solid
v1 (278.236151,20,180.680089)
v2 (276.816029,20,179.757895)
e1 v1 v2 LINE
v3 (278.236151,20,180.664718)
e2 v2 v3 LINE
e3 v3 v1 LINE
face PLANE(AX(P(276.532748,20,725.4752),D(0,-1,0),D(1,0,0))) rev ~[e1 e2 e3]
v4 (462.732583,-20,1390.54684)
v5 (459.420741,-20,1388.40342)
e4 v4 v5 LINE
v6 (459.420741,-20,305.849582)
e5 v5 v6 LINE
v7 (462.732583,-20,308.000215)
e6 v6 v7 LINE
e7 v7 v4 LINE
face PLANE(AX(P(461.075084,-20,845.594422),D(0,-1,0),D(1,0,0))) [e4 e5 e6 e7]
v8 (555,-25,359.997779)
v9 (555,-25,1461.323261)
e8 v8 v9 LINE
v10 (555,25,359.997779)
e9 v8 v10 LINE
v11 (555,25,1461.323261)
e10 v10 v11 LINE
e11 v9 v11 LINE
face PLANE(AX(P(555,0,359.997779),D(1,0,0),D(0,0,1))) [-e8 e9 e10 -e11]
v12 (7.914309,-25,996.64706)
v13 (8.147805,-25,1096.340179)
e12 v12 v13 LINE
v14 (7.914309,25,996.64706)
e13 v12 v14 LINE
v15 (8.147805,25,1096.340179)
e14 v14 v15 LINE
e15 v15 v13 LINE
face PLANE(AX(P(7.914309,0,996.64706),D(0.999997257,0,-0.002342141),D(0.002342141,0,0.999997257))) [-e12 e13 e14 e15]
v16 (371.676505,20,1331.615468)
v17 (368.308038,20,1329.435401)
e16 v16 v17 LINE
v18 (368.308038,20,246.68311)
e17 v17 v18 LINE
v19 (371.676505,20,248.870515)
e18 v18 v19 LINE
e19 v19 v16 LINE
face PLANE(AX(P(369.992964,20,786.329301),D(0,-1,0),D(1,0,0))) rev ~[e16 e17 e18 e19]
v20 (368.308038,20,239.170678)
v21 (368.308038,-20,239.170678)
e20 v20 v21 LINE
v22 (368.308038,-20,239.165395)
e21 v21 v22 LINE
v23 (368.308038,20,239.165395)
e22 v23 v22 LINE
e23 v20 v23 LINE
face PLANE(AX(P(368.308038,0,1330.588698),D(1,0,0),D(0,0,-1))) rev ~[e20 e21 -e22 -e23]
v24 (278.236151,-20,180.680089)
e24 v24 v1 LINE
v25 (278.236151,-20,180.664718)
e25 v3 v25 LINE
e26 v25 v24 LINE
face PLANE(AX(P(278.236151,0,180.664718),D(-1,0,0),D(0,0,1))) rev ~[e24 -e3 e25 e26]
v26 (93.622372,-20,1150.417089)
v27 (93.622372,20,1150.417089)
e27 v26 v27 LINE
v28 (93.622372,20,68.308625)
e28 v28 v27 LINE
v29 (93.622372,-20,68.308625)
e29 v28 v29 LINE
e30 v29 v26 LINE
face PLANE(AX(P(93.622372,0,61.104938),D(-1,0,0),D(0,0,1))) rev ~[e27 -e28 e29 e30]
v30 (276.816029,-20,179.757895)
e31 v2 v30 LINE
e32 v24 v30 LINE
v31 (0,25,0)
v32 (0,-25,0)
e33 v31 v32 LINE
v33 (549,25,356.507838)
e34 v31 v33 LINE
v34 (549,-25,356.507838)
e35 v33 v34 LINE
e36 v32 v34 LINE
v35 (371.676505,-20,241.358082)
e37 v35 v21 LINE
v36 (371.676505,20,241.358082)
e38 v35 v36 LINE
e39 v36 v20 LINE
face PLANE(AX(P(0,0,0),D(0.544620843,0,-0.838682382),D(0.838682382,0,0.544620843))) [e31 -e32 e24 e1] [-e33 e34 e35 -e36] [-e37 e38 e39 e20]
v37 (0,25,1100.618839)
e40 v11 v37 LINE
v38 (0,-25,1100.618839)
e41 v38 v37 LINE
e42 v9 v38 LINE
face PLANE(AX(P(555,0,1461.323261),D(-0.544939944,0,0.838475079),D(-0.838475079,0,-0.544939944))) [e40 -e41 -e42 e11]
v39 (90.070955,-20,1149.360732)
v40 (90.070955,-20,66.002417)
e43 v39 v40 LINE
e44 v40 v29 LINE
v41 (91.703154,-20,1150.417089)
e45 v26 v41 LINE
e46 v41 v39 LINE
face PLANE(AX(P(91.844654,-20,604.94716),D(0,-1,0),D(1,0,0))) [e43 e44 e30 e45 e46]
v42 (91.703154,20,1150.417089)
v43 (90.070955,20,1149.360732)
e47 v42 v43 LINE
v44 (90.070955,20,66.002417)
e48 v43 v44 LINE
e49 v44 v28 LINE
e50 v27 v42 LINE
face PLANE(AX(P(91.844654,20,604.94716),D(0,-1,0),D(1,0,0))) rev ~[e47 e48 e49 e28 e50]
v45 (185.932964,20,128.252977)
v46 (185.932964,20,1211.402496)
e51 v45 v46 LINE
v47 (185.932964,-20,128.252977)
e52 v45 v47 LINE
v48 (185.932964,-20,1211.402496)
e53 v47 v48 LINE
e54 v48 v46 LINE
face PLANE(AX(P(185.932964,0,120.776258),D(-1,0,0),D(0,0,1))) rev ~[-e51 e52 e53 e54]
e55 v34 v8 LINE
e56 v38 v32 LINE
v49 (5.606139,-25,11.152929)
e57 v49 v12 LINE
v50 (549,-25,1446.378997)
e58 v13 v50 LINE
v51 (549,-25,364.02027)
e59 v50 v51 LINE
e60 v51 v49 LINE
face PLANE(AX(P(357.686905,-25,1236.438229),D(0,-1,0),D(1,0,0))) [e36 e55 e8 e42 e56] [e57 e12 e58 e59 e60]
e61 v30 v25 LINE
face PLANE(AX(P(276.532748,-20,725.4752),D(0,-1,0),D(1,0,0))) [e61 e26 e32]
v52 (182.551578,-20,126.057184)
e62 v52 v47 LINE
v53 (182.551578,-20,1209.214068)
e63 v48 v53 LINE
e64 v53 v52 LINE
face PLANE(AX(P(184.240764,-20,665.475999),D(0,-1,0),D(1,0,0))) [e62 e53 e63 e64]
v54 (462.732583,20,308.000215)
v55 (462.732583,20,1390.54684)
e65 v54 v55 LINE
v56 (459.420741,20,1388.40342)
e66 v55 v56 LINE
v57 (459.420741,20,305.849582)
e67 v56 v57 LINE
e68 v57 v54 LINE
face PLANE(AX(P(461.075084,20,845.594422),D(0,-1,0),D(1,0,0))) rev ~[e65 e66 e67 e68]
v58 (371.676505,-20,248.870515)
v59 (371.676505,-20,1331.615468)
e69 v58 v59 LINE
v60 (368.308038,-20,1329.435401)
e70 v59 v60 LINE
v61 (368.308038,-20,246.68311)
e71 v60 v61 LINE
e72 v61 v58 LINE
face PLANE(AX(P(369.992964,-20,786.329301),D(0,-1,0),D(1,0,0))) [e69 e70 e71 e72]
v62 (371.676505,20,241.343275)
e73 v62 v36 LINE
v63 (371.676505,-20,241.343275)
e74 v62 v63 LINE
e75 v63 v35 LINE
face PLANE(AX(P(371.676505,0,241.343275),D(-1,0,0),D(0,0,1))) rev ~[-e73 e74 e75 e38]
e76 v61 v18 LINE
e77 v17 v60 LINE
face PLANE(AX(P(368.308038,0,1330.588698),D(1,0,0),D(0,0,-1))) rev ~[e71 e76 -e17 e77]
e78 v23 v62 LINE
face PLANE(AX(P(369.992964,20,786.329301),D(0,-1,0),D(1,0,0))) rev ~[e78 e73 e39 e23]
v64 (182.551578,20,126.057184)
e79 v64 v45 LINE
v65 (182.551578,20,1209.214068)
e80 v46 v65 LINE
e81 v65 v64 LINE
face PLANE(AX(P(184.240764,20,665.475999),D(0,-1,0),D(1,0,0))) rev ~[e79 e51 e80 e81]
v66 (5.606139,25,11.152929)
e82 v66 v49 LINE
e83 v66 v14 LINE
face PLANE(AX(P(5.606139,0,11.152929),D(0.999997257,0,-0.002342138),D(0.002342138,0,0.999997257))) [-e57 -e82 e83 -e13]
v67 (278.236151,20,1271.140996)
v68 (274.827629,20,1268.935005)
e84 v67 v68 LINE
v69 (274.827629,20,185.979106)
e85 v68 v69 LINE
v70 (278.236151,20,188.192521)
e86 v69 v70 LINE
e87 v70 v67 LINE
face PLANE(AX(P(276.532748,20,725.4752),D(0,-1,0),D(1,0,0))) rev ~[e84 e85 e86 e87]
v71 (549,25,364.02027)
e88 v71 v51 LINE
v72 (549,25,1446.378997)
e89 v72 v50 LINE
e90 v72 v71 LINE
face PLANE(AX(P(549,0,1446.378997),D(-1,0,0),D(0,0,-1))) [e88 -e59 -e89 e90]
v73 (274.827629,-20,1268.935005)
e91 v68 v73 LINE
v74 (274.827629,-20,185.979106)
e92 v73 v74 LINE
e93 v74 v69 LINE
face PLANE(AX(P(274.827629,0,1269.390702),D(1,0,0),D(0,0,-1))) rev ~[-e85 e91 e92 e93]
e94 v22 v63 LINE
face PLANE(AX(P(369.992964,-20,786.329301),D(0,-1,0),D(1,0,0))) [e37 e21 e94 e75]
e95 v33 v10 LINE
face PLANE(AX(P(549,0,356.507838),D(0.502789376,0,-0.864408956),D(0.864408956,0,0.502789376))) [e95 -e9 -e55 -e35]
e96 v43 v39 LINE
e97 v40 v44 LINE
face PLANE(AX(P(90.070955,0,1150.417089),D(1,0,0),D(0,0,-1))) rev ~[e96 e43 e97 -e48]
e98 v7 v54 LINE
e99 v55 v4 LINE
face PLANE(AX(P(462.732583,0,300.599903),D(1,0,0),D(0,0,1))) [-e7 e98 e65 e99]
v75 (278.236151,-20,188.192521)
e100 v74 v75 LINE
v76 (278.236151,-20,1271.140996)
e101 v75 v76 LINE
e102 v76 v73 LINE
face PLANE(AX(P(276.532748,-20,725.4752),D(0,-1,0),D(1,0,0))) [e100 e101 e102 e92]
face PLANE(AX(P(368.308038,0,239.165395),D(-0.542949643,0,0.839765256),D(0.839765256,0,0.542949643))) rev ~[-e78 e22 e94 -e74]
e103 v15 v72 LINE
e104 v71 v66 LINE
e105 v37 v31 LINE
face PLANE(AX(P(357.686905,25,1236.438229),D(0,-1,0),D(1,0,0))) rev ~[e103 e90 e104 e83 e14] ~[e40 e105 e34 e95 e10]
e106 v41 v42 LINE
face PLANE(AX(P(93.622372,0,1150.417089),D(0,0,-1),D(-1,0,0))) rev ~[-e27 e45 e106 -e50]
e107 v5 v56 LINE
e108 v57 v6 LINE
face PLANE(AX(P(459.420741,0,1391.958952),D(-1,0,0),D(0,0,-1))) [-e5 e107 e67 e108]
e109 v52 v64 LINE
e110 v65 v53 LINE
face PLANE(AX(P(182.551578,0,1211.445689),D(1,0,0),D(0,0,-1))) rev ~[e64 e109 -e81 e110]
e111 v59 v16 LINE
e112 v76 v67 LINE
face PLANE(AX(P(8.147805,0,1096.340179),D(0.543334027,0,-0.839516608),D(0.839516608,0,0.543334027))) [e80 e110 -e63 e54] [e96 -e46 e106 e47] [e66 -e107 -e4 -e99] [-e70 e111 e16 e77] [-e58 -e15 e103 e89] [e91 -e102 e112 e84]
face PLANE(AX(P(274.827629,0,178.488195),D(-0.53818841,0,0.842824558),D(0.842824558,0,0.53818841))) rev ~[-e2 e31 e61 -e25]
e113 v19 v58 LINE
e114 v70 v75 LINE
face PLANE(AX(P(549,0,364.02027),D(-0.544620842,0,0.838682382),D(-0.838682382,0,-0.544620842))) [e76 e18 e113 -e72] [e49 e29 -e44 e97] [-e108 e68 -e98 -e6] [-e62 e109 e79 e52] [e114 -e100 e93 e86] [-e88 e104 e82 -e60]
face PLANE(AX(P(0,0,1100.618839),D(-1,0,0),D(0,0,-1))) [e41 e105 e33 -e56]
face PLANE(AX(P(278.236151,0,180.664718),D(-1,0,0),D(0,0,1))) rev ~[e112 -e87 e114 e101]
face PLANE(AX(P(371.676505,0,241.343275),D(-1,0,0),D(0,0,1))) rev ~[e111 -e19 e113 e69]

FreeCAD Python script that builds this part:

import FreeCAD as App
import Part
import Sketcher

V = App.Vector


def add_polygon(sketch, points):
    """Adds a closed chain of lines whose ends are joined by coincident constraints."""
    first, n = sketch.GeometryCount, len(points)
    for a, b in zip(points, points[1:] + points[:1]):
        sketch.addGeometry(Part.LineSegment(App.Vector(*a, 0), App.Vector(*b, 0)), False)
    for i in range(n):
        sketch.addConstraint(Sketcher.Constraint("Coincident", first + i, 2, first + (i + 1) % n, 1))

doc = App.newDocument("Part")
params = doc.addObject("Spreadsheet::Sheet", "Params")
for row, (alias, value) in enumerate([
    ("pad1_length", "50 mm"),
    ("pad2_length", "40 mm"),
], start=1):
    params.set(f"A{row}", alias)
    params.set(f"B{row}", "=" + value)
    params.setAlias(f"B{row}", alias)

body = doc.addObject("PartDesign::Body", "Body")

# Sketch on XZ plane
sketch1 = body.newObject("Sketcher::SketchObject", "Sketch")
sketch1.AttachmentSupport = (doc.getObject("XZ_Plane"), [""])
sketch1.MapMode = "FlatFace"
add_polygon(sketch1, [(0, 1101), (0, 0), (549, 357), (555, 360), (555, 1461)])  # lines 0-4
add_polygon(sketch1, [(8, 997), (8, 1096), (549, 1446), (549, 364), (6, 11)])  # lines 5-9
sketch1.addConstraint(Sketcher.Constraint("Vertical", 0))
sketch1.addConstraint(Sketcher.Constraint("Vertical", 3))
sketch1.addConstraint(Sketcher.Constraint("Vertical", 7))
sketch1.addConstraint(Sketcher.Constraint("Coincident", 0, 2, -1, 1))
sketch1.addConstraint(Sketcher.Constraint("Parallel", 1, 8))
sketch1.addConstraint(Sketcher.Constraint("Parallel", 5, 9))
sketch1.addConstraint(Sketcher.Constraint("Vertical", 1, 2, 6, 2))
sketch1.addConstraint(Sketcher.Constraint("DistanceX", -1, 1, 1, 2, 549.0))
sketch1.addConstraint(Sketcher.Constraint("DistanceX", -1, 1, 2, 2, 555.0))
sketch1.addConstraint(Sketcher.Constraint("DistanceY", 1, 2, 4, 2, 744.111001))
sketch1.addConstraint(Sketcher.Constraint("Distance", 6, 644.242401))
sketch1.addConstraint(Sketcher.Constraint("DistanceY", 0, 2, 0, 1, 1100.618839))
sketch1.addConstraint(Sketcher.Constraint("DistanceY", 3, 1, 3, 2, 1101.325482))
sketch1.addConstraint(Sketcher.Constraint("DistanceY", 2, 2, 5, 2, 736.3424))
sketch1.addConstraint(Sketcher.Constraint("DistanceY", 9, 2, 3, 2, 464.676201))
sketch1.addConstraint(Sketcher.Constraint("Distance", 2, 6.941159))
sketch1.addConstraint(Sketcher.Constraint("DistanceY", 7, 2, 7, 1, 1082.358727))
sketch1.addConstraint(Sketcher.Constraint("DistanceY", -1, 1, 7, 2, 364.02027))
sketch1.addConstraint(Sketcher.Constraint("DistanceX", -1, 1, 8, 2, 5.606139))
pad1 = body.newObject("PartDesign::Pad", "Pad")
pad1.Profile = sketch1
pad1.setExpression("Length", "Params.pad1_length")
pad1.Midplane = True

# Sketch on XZ plane
sketch2 = body.newObject("Sketcher::SketchObject", "Sketch001")
sketch2.AttachmentSupport = (doc.getObject("XZ_Plane"), [""])
sketch2.MapMode = "FlatFace"
add_polygon(sketch2, [(90.1, 1150.4), (90.1, 58.6), (93.6, 61.1), (93.6, 1150.4)])  # lines 0-3
add_polygon(sketch2, [(182.6, 1211.4), (182.6, 118.7), (185.9, 120.8), (185.9, 1211.6)])  # lines 4-7
add_polygon(sketch2, [(274.8, 1269.4), (274.8, 178.5), (278.2, 180.7), (278.2, 1272.7)])  # lines 8-11
add_polygon(sketch2, [(368.3, 1330.6), (368.3, 239.2), (371.7, 241.3), (371.7, 1333.7)])  # lines 12-15
add_polygon(sketch2, [(459.4, 1392), (459.4, 298.4), (462.7, 300.6), (462.7, 1392)])  # lines 16-19
sketch2.addConstraint(Sketcher.Constraint("Vertical", 0))
sketch2.addConstraint(Sketcher.Constraint("Vertical", 2))
sketch2.addConstraint(Sketcher.Constraint("Horizontal", 3))
sketch2.addConstraint(Sketcher.Constraint("Vertical", 4))
sketch2.addConstraint(Sketcher.Constraint("Vertical", 6))
sketch2.addConstraint(Sketcher.Constraint("Vertical", 8))
sketch2.addConstraint(Sketcher.Constraint("Vertical", 10))
sketch2.addConstraint(Sketcher.Constraint("Vertical", 12))
sketch2.addConstraint(Sketcher.Constraint("Vertical", 14))
sketch2.addConstraint(Sketcher.Constraint("Vertical", 16))
sketch2.addConstraint(Sketcher.Constraint("Vertical", 18))
sketch2.addConstraint(Sketcher.Constraint("Distance", 13, 4.011201))
sketch2.addConstraint(Sketcher.Constraint("DistanceY", 2, 1, 2, 2, 1089.312151))
sketch2.addConstraint(Sketcher.Constraint("DistanceY", 6, 1, 6, 2, 1090.797581))
sketch2.addConstraint(Sketcher.Constraint("DistanceY", -1, 1, 11, 2, 1269.390702))
sketch2.addConstraint(Sketcher.Constraint("DistanceY", -1, 1, 15, 2, 1330.588698))
sketch2.addConstraint(Sketcher.Constraint("DistanceY", 1, 2, 6, 2, 1150.468901))
sketch2.addConstraint(Sketcher.Constraint("DistanceY", 2, 2, 7, 2, 61.0286))
sketch2.addConstraint(Sketcher.Constraint("DistanceY", 8, 2, 12, 2, 60.6772))
sketch2.addConstraint(Sketcher.Constraint("DistanceY", 4, 2, 13, 2, 122.648299))
sketch2.addConstraint(Sketcher.Constraint("DistanceY", 10, 2, 18, 2, 119.376302))
sketch2.addConstraint(Sketcher.Constraint("Distance", 1, 4.32988))
sketch2.addConstraint(Sketcher.Constraint("Distance", 5, 3.97058))
sketch2.addConstraint(Sketcher.Constraint("Distance", 17, 3.963629))
sketch2.addConstraint(Sketcher.Constraint("DistanceX", 3, 2, 3, 1, 3.551417))
sketch2.addConstraint(Sketcher.Constraint("DistanceY", 4, 2, 4, 1, 1092.750713))
sketch2.addConstraint(Sketcher.Constraint("DistanceY", 8, 2, 8, 1, 1090.902507))
sketch2.addConstraint(Sketcher.Constraint("DistanceY", 10, 1, 10, 2, 1092.006147))
sketch2.addConstraint(Sketcher.Constraint("DistanceY", 14, 1, 14, 2, 1092.324242))
sketch2.addConstraint(Sketcher.Constraint("DistanceY", 16, 2, 16, 1, 1093.536675))
sketch2.addConstraint(Sketcher.Constraint("DistanceY", 18, 1, 18, 2, 1091.447264))
sketch2.addConstraint(Sketcher.Constraint("DistanceX", -1, 1, 1, 2, 93.622372))
sketch2.addConstraint(Sketcher.Constraint("DistanceY", -1, 1, 2, 2, 1150.417089))
sketch2.addConstraint(Sketcher.Constraint("DistanceX", -1, 1, 4, 2, 182.551578))
sketch2.addConstraint(Sketcher.Constraint("DistanceX", -1, 1, 8, 2, 274.827629))
sketch2.addConstraint(Sketcher.Constraint("DistanceX", -1, 1, 9, 2, 278.236151))
sketch2.addConstraint(Sketcher.Constraint("DistanceY", -1, 1, 9, 2, 180.664718))
sketch2.addConstraint(Sketcher.Constraint("DistanceX", -1, 1, 12, 2, 368.308038))
sketch2.addConstraint(Sketcher.Constraint("DistanceX", -1, 1, 16, 2, 459.420741))
sketch2.addConstraint(Sketcher.Constraint("DistanceY", -1, 1, 19, 2, 1391.958952))
pad2 = body.newObject("PartDesign::Pad", "Pad001")
pad2.Profile = sketch2
pad2.setExpression("Length", "Params.pad2_length")
pad2.Midplane = True

doc.recompute()
